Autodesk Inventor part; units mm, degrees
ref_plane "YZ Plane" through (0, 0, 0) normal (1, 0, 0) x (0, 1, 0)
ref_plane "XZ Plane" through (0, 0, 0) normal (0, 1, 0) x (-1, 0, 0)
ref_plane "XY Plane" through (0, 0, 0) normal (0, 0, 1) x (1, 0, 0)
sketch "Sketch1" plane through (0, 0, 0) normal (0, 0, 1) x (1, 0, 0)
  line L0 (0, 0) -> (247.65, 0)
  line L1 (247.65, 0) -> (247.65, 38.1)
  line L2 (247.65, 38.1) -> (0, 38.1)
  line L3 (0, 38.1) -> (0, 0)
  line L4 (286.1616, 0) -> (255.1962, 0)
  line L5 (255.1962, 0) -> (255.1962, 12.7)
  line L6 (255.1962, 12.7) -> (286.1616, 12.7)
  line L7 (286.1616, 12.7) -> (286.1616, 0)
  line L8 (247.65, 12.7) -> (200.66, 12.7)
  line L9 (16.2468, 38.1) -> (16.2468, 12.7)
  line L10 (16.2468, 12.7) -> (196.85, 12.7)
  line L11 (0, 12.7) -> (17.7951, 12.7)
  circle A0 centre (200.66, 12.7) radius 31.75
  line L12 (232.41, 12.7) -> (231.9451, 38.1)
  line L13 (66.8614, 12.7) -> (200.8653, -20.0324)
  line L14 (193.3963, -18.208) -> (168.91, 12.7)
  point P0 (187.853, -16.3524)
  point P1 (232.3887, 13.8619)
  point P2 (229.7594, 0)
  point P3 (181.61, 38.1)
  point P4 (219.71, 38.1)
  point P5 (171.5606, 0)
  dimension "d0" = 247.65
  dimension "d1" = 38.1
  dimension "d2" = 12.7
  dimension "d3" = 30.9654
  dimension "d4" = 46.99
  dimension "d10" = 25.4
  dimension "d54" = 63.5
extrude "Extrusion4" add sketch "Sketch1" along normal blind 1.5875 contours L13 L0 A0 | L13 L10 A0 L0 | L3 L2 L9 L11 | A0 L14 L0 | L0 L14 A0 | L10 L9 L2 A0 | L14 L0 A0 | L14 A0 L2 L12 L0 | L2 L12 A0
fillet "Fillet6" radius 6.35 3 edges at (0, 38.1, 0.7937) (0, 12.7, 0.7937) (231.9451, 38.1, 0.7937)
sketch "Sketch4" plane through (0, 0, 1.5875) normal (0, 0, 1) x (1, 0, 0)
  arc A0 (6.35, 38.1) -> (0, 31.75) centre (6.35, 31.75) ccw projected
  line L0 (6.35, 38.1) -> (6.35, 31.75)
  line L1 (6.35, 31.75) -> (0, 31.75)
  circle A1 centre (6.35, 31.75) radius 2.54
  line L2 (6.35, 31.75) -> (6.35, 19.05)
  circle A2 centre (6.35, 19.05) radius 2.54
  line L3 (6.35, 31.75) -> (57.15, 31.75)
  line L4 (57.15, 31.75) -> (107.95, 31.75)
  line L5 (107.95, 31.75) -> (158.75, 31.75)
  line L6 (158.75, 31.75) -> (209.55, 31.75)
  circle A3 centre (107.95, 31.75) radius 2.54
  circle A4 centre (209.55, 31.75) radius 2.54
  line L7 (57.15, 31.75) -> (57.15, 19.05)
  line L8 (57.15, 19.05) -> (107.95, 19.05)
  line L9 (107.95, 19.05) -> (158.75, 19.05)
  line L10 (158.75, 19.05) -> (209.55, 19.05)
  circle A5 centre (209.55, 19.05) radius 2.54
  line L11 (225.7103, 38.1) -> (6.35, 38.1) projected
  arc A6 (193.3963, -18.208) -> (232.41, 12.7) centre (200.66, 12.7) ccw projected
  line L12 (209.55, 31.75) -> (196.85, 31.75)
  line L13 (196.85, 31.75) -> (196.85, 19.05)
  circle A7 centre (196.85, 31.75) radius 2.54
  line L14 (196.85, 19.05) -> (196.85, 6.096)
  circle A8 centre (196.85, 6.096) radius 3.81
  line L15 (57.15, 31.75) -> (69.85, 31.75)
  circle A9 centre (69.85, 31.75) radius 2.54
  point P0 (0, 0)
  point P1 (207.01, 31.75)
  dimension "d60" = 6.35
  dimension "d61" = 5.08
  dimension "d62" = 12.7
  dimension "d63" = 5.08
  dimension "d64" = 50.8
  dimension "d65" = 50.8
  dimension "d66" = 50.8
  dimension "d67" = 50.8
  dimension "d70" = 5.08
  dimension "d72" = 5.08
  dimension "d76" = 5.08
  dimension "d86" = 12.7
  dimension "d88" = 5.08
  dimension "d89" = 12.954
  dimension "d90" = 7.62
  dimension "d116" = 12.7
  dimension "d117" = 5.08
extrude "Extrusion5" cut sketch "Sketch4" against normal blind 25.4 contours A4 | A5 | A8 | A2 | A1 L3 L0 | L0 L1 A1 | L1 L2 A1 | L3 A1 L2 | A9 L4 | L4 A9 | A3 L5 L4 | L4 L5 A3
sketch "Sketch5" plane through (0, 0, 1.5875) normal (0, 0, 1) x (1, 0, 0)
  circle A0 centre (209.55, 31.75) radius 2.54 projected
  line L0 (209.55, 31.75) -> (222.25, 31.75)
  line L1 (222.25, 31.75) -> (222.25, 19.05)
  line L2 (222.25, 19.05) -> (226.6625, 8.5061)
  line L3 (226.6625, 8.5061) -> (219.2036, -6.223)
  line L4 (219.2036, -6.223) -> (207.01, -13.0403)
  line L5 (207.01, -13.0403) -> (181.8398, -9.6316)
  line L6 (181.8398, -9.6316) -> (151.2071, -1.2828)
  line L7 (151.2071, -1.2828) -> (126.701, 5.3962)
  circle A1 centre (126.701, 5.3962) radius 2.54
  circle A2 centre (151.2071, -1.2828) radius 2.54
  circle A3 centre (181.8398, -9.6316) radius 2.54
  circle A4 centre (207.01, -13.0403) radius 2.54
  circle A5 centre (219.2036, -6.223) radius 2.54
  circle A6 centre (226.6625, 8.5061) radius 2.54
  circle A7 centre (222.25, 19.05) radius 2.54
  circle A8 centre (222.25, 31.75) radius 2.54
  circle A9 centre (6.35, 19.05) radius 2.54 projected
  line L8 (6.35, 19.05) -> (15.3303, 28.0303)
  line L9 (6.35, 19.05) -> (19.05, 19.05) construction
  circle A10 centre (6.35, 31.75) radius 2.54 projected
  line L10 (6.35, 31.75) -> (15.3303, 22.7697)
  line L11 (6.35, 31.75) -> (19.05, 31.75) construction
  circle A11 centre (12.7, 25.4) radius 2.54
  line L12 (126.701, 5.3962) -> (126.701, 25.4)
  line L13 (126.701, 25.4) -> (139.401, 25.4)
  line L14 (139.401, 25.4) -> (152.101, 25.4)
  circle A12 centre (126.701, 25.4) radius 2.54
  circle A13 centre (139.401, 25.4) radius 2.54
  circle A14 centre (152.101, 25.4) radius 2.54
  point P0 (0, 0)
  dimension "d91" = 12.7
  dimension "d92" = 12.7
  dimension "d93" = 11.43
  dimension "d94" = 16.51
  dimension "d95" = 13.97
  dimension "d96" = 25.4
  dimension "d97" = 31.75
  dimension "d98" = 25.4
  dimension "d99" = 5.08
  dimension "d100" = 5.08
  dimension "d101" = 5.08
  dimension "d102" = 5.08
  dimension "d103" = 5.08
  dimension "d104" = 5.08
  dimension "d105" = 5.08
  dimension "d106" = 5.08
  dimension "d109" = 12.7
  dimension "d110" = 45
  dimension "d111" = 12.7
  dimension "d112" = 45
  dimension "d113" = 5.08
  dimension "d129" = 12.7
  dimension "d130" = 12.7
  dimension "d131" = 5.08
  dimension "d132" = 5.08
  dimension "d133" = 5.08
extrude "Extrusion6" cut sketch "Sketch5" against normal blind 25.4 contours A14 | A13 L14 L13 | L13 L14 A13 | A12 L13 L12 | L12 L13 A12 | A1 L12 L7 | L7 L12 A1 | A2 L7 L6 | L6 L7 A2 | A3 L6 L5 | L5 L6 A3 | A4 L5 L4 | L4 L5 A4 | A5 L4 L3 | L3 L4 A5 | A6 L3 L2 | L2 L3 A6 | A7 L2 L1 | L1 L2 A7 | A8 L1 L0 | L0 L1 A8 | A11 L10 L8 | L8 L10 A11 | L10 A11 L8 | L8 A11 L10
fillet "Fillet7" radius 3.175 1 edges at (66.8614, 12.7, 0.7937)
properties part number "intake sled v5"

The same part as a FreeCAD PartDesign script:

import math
import FreeCAD as App
import Part
import Sketcher
Q = App.Units.Quantity


def edges_at(feature, points):
    """Names of the edges that pass closest to the given points."""
    edges = feature.Shape.Edges
    near = lambda p: min(range(len(edges)), key=lambda i: edges[i].distToShape(Part.Vertex(*p))[0])
    return sorted({f"Edge{near(p) + 1}" for p in points})

doc = App.newDocument("Part")
body = doc.addObject("PartDesign::Body", "Body")

# Sketch on XY plane
sketch1 = doc.addObject("Sketcher::SketchObject", "Sketch")
body.addObject(sketch1)
sketch1.AttachmentSupport = (doc.XY_Plane, [""])
sketch1.MapMode = "FlatFace"
sketch1.addGeometry(Part.ArcOfCircle(Part.Circle(App.Vector(200.66, 12.7, 0), App.Vector(0, 0, 1), 31.75), math.radians(-103.225113), math.radians(0)), False)
sketch1.addGeometry(Part.LineSegment(App.Vector(232.41, 12.7, 0), App.Vector(231.9451, 38.1, 0)), False)
sketch1.addGeometry(Part.LineSegment(App.Vector(231.9451, 38.1, 0), App.Vector(0, 38.1, 0)), False)
sketch1.addGeometry(Part.LineSegment(App.Vector(0, 38.1, 0), App.Vector(0, 12.7, 0)), False)
sketch1.addGeometry(Part.LineSegment(App.Vector(0, 12.7, 0), App.Vector(66.8614, 12.7, 0)), False)
sketch1.addGeometry(Part.LineSegment(App.Vector(66.8614, 12.7, 0), App.Vector(193.3963, -18.208, 0)), False)
sketch1.addConstraint(Sketcher.Constraint("Coincident", 0, 2, 1, 1))
sketch1.addConstraint(Sketcher.Constraint("Coincident", 1, 2, 2, 1))
sketch1.addConstraint(Sketcher.Constraint("Coincident", 2, 2, 3, 1))
sketch1.addConstraint(Sketcher.Constraint("Coincident", 3, 2, 4, 1))
sketch1.addConstraint(Sketcher.Constraint("Coincident", 4, 2, 5, 1))
sketch1.addConstraint(Sketcher.Constraint("Coincident", 5, 2, 0, 1))
sketch1.addConstraint(Sketcher.Constraint("Horizontal", 2))
sketch1.addConstraint(Sketcher.Constraint("Vertical", 3))
sketch1.addConstraint(Sketcher.Constraint("Horizontal", 4))
sketch1.addConstraint(Sketcher.Constraint("PointOnObject", 2, 2, -2))
sketch1.addConstraint(Sketcher.Constraint("Horizontal", 0, 2, 3, 2))
sketch1.addConstraint(Sketcher.Constraint("DistanceY", 3, 2, 3, 1, Q("1 in")))
sketch1.addConstraint(Sketcher.Constraint("Radius", 0, Q("1.25 in")))
sketch1.addConstraint(Sketcher.Constraint("DistanceY", 0, 3, 1, 2, Q("1 in")))
sketch1.addConstraint(Sketcher.Constraint("DistanceY", -1, 1, 0, 3, Q("0.5 in")))
sketch1.addConstraint(Sketcher.Constraint("DistanceX", -1, 1, 0, 3, Q("7.9 in")))
sketch1.addConstraint(Sketcher.Constraint("DistanceX", 2, 2, 2, 1, Q("9.1317 in")))
sketch1.addConstraint(Sketcher.Constraint("DistanceX", 4, 1, 4, 2, 66.8614))
sketch1.addConstraint(Sketcher.Constraint("DistanceX", 4, 2, 5, 2, Q("4.9817 in")))
pad1 = doc.addObject("PartDesign::Pad", "Pad")
body.addObject(pad1)
pad1.Profile = sketch1
pad1.Length = Q("0.0625 in")
doc.recompute()

fillet = doc.addObject("PartDesign::Fillet", "Fillet")
body.addObject(fillet)
fillet.Base = (pad1, edges_at(pad1, [(0, 38.1, 0.794), (0, 12.7, 0.794), (231.945, 38.1, 0.794)]))
fillet.Radius = Q("0.25 in")

# Sketch on XY plane
sketch2 = doc.addObject("Sketcher::SketchObject", "Sketch001")
body.addObject(sketch2)
sketch2.AttachmentSupport = (doc.XY_Plane, [""])
sketch2.MapMode = "FlatFace"
sketch2.AttachmentOffset = App.Placement(App.Vector(0, 0, 0.0625 * 25.4), App.Rotation())
sketch2.addGeometry(Part.Circle(App.Vector(209.55, 31.75, 0), App.Vector(0, 0, 1), 2.54), False)
sketch2.addGeometry(Part.Circle(App.Vector(209.55, 19.05, 0), App.Vector(0, 0, 1), 2.54), False)
sketch2.addGeometry(Part.Circle(App.Vector(196.85, 6.096, 0), App.Vector(0, 0, 1), 3.81), False)
sketch2.addGeometry(Part.Circle(App.Vector(6.35, 19.05, 0), App.Vector(0, 0, 1), 2.54), False)
sketch2.addGeometry(Part.Circle(App.Vector(6.35, 31.75, 0), App.Vector(0, 0, 1), 2.54), False)
sketch2.addGeometry(Part.Circle(App.Vector(69.85, 31.75, 0), App.Vector(0, 0, 1), 2.54), False)
sketch2.addGeometry(Part.Circle(App.Vector(107.95, 31.75, 0), App.Vector(0, 0, 1), 2.54), False)
sketch2.addConstraint(Sketcher.Constraint("Equal", 0, 1))
sketch2.addConstraint(Sketcher.Constraint("Equal", 1, 3))
sketch2.addConstraint(Sketcher.Constraint("Equal", 3, 4))
sketch2.addConstraint(Sketcher.Constraint("Equal", 4, 5))
sketch2.addConstraint(Sketcher.Constraint("Equal", 5, 6))
sketch2.addConstraint(Sketcher.Constraint("Horizontal", 1, 3, 3, 3))
sketch2.addConstraint(Sketcher.Constraint("Horizontal", 0, 3, 4, 3))
sketch2.addConstraint(Sketcher.Constraint("Horizontal", 4, 3, 5, 3))
sketch2.addConstraint(Sketcher.Constraint("Horizontal", 5, 3, 6, 3))
sketch2.addConstraint(Sketcher.Constraint("Vertical", 0, 3, 1, 3))
sketch2.addConstraint(Sketcher.Constraint("Vertical", 3, 3, 4, 3))
sketch2.addConstraint(Sketcher.Constraint("Diameter", 0, Q("0.2 in")))
sketch2.addConstraint(Sketcher.Constraint("Diameter", 2, Q("0.3 in")))
sketch2.addConstraint(Sketcher.Constraint("DistanceY", 1, 3, 0, 3, Q("0.5 in")))
sketch2.addConstraint(Sketcher.Constraint("DistanceX", 2, 3, 1, 3, Q("0.5 in")))
sketch2.addConstraint(Sketcher.Constraint("DistanceX", -1, 1, 3, 3, Q("0.25 in")))
sketch2.addConstraint(Sketcher.Constraint("DistanceY", 2, 3, 1, 3, Q("0.51 in")))
sketch2.addConstraint(Sketcher.Constraint("DistanceX", 3, 3, 1, 3, Q("8 in")))
sketch2.addConstraint(Sketcher.Constraint("DistanceX", 5, 3, 2, 3, Q("5 in")))
sketch2.addConstraint(Sketcher.Constraint("DistanceX", 6, 3, 0, 3, Q("4 in")))
sketch2.addConstraint(Sketcher.Constraint("DistanceY", -1, 1, 0, 3, Q("1.25 in")))
pocket1 = doc.addObject("PartDesign::Pocket", "Pocket")
body.addObject(pocket1)
pocket1.Profile = sketch2
pocket1.Length = Q("1 in")

# Sketch on XY plane
sketch3 = doc.addObject("Sketcher::SketchObject", "Sketch002")
body.addObject(sketch3)
sketch3.AttachmentSupport = (doc.XY_Plane, [""])
sketch3.MapMode = "FlatFace"
sketch3.AttachmentOffset = App.Placement(App.Vector(0, 0, 0.0625 * 25.4), App.Rotation())
sketch3.addGeometry(Part.Circle(App.Vector(152.101, 25.4, 0), App.Vector(0, 0, 1), 2.54), False)
sketch3.addGeometry(Part.Circle(App.Vector(139.401, 25.4, 0), App.Vector(0, 0, 1), 2.54), False)
sketch3.addGeometry(Part.Circle(App.Vector(126.701, 25.4, 0), App.Vector(0, 0, 1), 2.54), False)
sketch3.addGeometry(Part.Circle(App.Vector(126.701, 5.3962, 0), App.Vector(0, 0, 1), 2.54), False)
sketch3.addGeometry(Part.Circle(App.Vector(151.2071, -1.2828, 0), App.Vector(0, 0, 1), 2.54), False)
sketch3.addGeometry(Part.Circle(App.Vector(181.8398, -9.6316, 0), App.Vector(0, 0, 1), 2.54), False)
sketch3.addGeometry(Part.Circle(App.Vector(207.01, -13.0403, 0), App.Vector(0, 0, 1), 2.54), False)
sketch3.addGeometry(Part.Circle(App.Vector(219.2036, -6.223, 0), App.Vector(0, 0, 1), 2.54), False)
sketch3.addGeometry(Part.Circle(App.Vector(226.6625, 8.5061, 0), App.Vector(0, 0, 1), 2.54), False)
sketch3.addGeometry(Part.Circle(App.Vector(222.25, 19.05, 0), App.Vector(0, 0, 1), 2.54), False)
sketch3.addGeometry(Part.Circle(App.Vector(222.25, 31.75, 0), App.Vector(0, 0, 1), 2.54), False)
sketch3.addGeometry(Part.Circle(App.Vector(12.7, 25.4, 0), App.Vector(0, 0, 1), 2.54), False)
sketch3.addConstraint(Sketcher.Constraint("Equal", 0, 1))
sketch3.addConstraint(Sketcher.Constraint("Equal", 1, 2))
sketch3.addConstraint(Sketcher.Constraint("Equal", 2, 3))
sketch3.addConstraint(Sketcher.Constraint("Equal", 3, 4))
sketch3.addConstraint(Sketcher.Constraint("Equal", 4, 5))
sketch3.addConstraint(Sketcher.Constraint("Equal", 5, 6))
sketch3.addConstraint(Sketcher.Constraint("Equal", 6, 7))
sketch3.addConstraint(Sketcher.Constraint("Equal", 7, 8))
sketch3.addConstraint(Sketcher.Constraint("Equal", 8, 9))
sketch3.addConstraint(Sketcher.Constraint("Equal", 9, 10))
sketch3.addConstraint(Sketcher.Constraint("Equal", 10, 11))
sketch3.addConstraint(Sketcher.Constraint("Horizontal", 0, 3, 1, 3))
sketch3.addConstraint(Sketcher.Constraint("Horizontal", 1, 3, 2, 3))
sketch3.addConstraint(Sketcher.Constraint("Horizontal", 2, 3, 11, 3))
sketch3.addConstraint(Sketcher.Constraint("Vertical", 2, 3, 3, 3))
sketch3.addConstraint(Sketcher.Constraint("Vertical", 9, 3, 10, 3))
sketch3.addConstraint(Sketcher.Constraint("Diameter", 0, Q("0.2 in")))
sketch3.addConstraint(Sketcher.Constraint("DistanceY", -1, 1, 0, 3, Q("1 in")))
sketch3.addConstraint(Sketcher.Constraint("DistanceX", 2, 3, 0, 3, Q("1 in")))
sketch3.addConstraint(Sketcher.Constraint("DistanceX", -1, 1, 11, 3, Q("0.5 in")))
sketch3.addConstraint(Sketcher.Constraint("DistanceX", 1, 3, 0, 3, Q("0.5 in")))
sketch3.addConstraint(Sketcher.Constraint("DistanceY", 9, 3, 10, 3, Q("0.5 in")))
sketch3.addConstraint(Sketcher.Constraint("DistanceY", -1, 1, 10, 3, Q("1.25 in")))
sketch3.addConstraint(Sketcher.Constraint("DistanceX", 6, 3, 9, 3, Q("0.6 in")))
sketch3.addConstraint(Sketcher.Constraint("DistanceX", -1, 1, 6, 3, Q("8.15 in")))
sketch3.addConstraint(Sketcher.Constraint("DistanceY", 7, 3, -1, 1, Q("0.245 in")))
sketch3.addConstraint(Sketcher.Constraint("DistanceX", 4, 3, 5, 3, Q("1.206 in")))
sketch3.addConstraint(Sketcher.Constraint("DistanceY", 4, 3, -1, 1, Q("0.0505 in")))
sketch3.addConstraint(Sketcher.Constraint("DistanceY", 5, 3, -1, 1, Q("0.3792 in")))
sketch3.addConstraint(Sketcher.Constraint("DistanceY", 6, 3, -1, 1, Q("0.5134 in")))
sketch3.addConstraint(Sketcher.Constraint("DistanceX", 3, 3, 4, 3, Q("0.9648 in")))
sketch3.addConstraint(Sketcher.Constraint("DistanceY", 4, 3, 8, 3, Q("0.3854 in")))
sketch3.addConstraint(Sketcher.Constraint("DistanceX", 0, 3, 8, 3, Q("2.9355 in")))
sketch3.addConstraint(Sketcher.Constraint("DistanceX", -1, 1, 0, 3, 152.101))
sketch3.addConstraint(Sketcher.Constraint("DistanceY", -1, 1, 3, 3, 5.3962))
sketch3.addConstraint(Sketcher.Constraint("DistanceX", -1, 1, 7, 3, 219.2036))
pocket2 = doc.addObject("PartDesign::Pocket", "Pocket001")
body.addObject(pocket2)
pocket2.Profile = sketch3
pocket2.Length = Q("1 in")
doc.recompute()

fillet2 = doc.addObject("PartDesign::Fillet", "Fillet001")
body.addObject(fillet2)
fillet2.Base = (pocket2, edges_at(pocket2, [(66.861, 12.7, 0.794)]))
fillet2.Radius = Q("0.125 in")

doc.recompute()
